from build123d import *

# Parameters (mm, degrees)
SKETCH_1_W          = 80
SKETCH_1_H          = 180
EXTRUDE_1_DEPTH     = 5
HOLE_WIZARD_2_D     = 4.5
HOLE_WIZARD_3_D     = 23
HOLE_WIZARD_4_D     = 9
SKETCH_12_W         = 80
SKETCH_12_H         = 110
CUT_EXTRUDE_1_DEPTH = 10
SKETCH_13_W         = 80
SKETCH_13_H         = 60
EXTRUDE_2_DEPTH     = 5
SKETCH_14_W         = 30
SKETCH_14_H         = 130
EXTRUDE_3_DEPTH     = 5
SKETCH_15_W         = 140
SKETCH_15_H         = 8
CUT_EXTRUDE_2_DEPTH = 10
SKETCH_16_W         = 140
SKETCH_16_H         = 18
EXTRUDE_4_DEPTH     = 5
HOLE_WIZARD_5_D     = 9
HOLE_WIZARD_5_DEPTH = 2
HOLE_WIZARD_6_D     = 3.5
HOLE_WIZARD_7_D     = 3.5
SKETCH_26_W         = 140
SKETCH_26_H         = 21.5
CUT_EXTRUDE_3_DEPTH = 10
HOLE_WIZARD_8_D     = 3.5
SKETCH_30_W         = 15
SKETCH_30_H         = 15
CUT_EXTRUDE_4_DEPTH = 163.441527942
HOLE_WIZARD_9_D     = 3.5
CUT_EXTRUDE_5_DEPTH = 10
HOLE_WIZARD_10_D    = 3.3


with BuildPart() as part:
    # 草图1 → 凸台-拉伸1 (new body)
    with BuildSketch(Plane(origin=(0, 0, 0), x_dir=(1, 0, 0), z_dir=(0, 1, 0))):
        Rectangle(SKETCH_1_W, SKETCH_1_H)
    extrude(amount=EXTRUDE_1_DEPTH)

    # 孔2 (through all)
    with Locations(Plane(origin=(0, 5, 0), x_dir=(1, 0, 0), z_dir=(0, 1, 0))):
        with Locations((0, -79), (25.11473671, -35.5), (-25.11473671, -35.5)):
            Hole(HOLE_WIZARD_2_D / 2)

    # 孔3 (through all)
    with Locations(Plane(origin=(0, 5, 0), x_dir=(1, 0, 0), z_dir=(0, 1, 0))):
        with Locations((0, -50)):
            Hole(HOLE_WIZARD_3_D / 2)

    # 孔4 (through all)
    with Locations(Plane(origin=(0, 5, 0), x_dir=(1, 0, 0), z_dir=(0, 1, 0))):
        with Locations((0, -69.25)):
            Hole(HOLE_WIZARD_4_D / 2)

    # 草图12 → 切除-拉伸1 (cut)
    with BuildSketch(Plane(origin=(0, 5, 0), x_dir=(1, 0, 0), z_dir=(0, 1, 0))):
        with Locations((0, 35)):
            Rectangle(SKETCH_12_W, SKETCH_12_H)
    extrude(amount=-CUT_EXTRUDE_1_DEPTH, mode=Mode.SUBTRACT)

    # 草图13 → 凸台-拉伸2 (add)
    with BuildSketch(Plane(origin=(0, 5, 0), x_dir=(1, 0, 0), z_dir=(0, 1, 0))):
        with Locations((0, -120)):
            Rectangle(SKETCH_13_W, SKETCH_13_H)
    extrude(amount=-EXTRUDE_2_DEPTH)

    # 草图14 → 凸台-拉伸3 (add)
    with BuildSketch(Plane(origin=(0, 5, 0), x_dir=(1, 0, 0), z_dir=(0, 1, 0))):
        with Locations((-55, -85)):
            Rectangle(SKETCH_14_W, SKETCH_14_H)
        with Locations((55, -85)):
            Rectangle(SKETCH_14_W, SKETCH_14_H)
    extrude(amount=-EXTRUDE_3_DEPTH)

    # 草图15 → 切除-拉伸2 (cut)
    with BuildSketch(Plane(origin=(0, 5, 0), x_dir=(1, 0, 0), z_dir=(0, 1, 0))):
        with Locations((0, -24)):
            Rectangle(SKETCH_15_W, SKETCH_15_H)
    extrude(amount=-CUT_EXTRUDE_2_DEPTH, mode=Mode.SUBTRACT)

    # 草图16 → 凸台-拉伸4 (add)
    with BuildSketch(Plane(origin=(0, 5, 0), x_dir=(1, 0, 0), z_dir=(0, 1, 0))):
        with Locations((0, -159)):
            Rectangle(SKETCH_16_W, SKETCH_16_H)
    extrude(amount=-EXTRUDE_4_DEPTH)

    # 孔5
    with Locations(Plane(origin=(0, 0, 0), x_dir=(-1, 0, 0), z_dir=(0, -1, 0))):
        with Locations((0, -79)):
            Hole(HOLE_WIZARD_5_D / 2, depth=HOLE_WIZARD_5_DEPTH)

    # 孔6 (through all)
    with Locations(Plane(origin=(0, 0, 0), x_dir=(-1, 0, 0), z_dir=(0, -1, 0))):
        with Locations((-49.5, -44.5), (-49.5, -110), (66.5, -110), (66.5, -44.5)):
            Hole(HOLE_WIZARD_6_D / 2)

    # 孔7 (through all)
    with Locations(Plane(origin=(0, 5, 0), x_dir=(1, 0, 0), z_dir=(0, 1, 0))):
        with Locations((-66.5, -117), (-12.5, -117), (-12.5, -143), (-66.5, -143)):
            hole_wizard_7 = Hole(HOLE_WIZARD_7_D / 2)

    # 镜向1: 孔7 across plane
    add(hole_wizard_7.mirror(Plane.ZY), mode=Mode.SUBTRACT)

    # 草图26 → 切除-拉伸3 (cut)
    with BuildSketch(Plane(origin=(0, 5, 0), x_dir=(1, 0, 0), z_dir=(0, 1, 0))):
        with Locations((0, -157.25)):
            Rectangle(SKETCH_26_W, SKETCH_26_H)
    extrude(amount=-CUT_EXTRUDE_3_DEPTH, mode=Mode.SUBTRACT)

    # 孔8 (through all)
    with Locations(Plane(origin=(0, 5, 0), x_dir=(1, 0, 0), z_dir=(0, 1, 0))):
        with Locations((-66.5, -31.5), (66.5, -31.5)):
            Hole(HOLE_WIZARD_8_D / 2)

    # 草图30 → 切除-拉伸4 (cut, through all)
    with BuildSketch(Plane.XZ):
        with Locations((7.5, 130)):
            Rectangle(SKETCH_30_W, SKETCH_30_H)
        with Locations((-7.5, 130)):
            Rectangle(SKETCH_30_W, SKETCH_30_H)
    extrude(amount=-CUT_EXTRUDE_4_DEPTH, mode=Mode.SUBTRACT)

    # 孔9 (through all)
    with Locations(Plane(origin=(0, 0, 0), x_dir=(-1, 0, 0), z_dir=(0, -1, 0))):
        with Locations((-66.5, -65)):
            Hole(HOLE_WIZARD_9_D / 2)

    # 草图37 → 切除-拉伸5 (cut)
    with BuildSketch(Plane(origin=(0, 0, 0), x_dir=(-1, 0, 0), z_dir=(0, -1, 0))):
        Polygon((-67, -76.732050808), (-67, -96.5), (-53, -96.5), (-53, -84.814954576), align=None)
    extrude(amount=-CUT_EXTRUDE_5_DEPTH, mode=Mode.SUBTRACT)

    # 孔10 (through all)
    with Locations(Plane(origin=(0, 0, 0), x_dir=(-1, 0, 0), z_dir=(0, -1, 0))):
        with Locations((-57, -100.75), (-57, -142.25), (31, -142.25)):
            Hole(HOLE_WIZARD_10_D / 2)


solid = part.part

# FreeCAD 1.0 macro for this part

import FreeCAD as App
import Part
import Sketcher
Q = App.Units.Quantity


def add_polygon(sketch, points):
    """Adds a closed chain of lines whose ends are joined by coincident constraints."""
    first, n = sketch.GeometryCount, len(points)
    for a, b in zip(points, points[1:] + points[:1]):
        sketch.addGeometry(Part.LineSegment(App.Vector(*a, 0), App.Vector(*b, 0)), False)
    for i in range(n):
        sketch.addConstraint(Sketcher.Constraint("Coincident", first + i, 2, first + (i + 1) % n, 1))

doc = App.newDocument("Part")
params = doc.addObject("Spreadsheet::Sheet", "Params")
for row, (alias, value) in enumerate([
    ("sketch1_width", "80 mm"),
    ("sketch1_height", "180 mm"),
    ("pad1_length", "5 mm"),
    ("sketch2_diameter", "4.5 mm"),
    ("hole_diameter", "4.5 mm"),
    ("sketch3_diameter", "23 mm"),
    ("hole2_diameter", "23 mm"),
    ("sketch4_diameter", "9 mm"),
    ("hole3_diameter", "9 mm"),
    ("sketch5_width", "80 mm"),
    ("sketch5_height", "110 mm"),
    ("pocket1_length", "10 mm"),
    ("sketch6_width", "80 mm"),
    ("sketch6_height", "60 mm"),
    ("pad2_length", "5 mm"),
    ("sketch7_width", "30 mm"),
    ("sketch7_height", "130 mm"),
    ("pad3_length", "5 mm"),
    ("sketch8_width", "140 mm"),
    ("sketch8_height", "8 mm"),
    ("pocket2_length", "10 mm"),
    ("sketch9_width", "140 mm"),
    ("sketch9_height", "18 mm"),
    ("pad4_length", "5 mm"),
    ("sketch10_diameter", "9 mm"),
    ("hole4_diameter", "9 mm"),
    ("hole4_depth", "2 mm"),
    ("sketch11_diameter", "3.5 mm"),
    ("hole5_diameter", "3.5 mm"),
    ("sketch12_diameter", "3.5 mm"),
    ("hole6_diameter", "3.5 mm"),
    ("sketch13_width", "140 mm"),
    ("sketch13_height", "21.5 mm"),
    ("pocket3_length", "10 mm"),
    ("sketch14_diameter", "3.5 mm"),
    ("hole7_diameter", "3.5 mm"),
    ("sketch15_width", "30 mm"),
    ("sketch15_height", "15 mm"),
    ("sketch16_diameter", "3.5 mm"),
    ("hole8_diameter", "3.5 mm"),
    ("sketch17_width", "14 mm"),
    ("pocket5_length", "10 mm"),
    ("sketch18_diameter", "3.3 mm"),
    ("hole9_diameter", "3.3 mm"),
], start=1):
    params.set(f"A{row}", alias)
    params.set(f"B{row}", "=" + value)
    params.setAlias(f"B{row}", alias)

body = doc.addObject("PartDesign::Body", "Body")

# Sketch on XZ plane
sketch1 = body.newObject("Sketcher::SketchObject", "Sketch")
sketch1.AttachmentSupport = (doc.getObject("XZ_Plane"), [""])
sketch1.MapMode = "FlatFace"
add_polygon(sketch1, [(-40, -90), (-40, 90), (40, 90), (40, -90)])  # lines 0-3
sketch1.addConstraint([
    Sketcher.Constraint("Vertical", 0),
    Sketcher.Constraint("Horizontal", 1),
    Sketcher.Constraint("Vertical", 2),
    Sketcher.Constraint("Horizontal", 3),
    Sketcher.Constraint("Symmetric", 0, 2, 2, 2, -1, 1),
    Sketcher.Constraint("DistanceX", 1, 1, 1, 2, 80.0),
    Sketcher.Constraint("DistanceY", 0, 1, 0, 2, 180.0),
])
sketch1.setExpression("Constraints[9]", "Params.sketch1_width")
sketch1.setExpression("Constraints[10]", "Params.sketch1_height")
pad1 = body.newObject("PartDesign::Pad", "Pad")
pad1.Profile = sketch1
pad1.setExpression("Length", "Params.pad1_length")
pad1.Reversed = True

# Sketch on XZ plane
sketch2 = body.newObject("Sketcher::SketchObject", "Sketch001")
sketch2.AttachmentSupport = (doc.getObject("XZ_Plane"), [""])
sketch2.MapMode = "FlatFace"
sketch2.AttachmentOffset = App.Placement(App.Vector(0, 0, -5), App.Rotation())
sketch2.addGeometry([
    Part.Circle(App.Vector(0, 79, 0), App.Vector(0, 0, 1), 2.25),
    Part.Circle(App.Vector(25.114737, 35.5, 0), App.Vector(0, 0, 1), 2.25),
    Part.Circle(App.Vector(-25.114737, 35.5, 0), App.Vector(0, 0, 1), 2.25),
], False)
sketch2.addConstraint([
    Sketcher.Constraint("Equal", 0, 1),
    Sketcher.Constraint("Equal", 1, 2),
    Sketcher.Constraint("Symmetric", 1, 3, 2, 3, -2),
    Sketcher.Constraint("PointOnObject", 0, 3, -2),
    Sketcher.Constraint("Diameter", 0, 4.5),
    Sketcher.Constraint("DistanceY", -1, 1, 0, 3, 79.0),
    Sketcher.Constraint("DistanceY", -1, 1, 1, 3, 35.5),
    Sketcher.Constraint("DistanceX", -1, 1, 1, 3, 25.114737),
])
sketch2.setExpression("Constraints[4]", "Params.sketch2_diameter")
doc.recompute()
hole = body.newObject("PartDesign::Hole", "Hole")
hole.Profile = sketch2
hole.ThreadType = "None"
hole.setExpression("Diameter", "Params.hole_diameter")
hole.DepthType = "ThroughAll"
hole.Reversed = True

# Sketch on XZ plane
sketch3 = body.newObject("Sketcher::SketchObject", "Sketch002")
sketch3.AttachmentSupport = (doc.getObject("XZ_Plane"), [""])
sketch3.MapMode = "FlatFace"
sketch3.AttachmentOffset = App.Placement(App.Vector(0, 0, -5), App.Rotation())
sketch3.addGeometry(Part.Circle(App.Vector(0, 50, 0), App.Vector(0, 0, 1), 11.5), False)
sketch3.addConstraint([
    Sketcher.Constraint("PointOnObject", 0, 3, -2),
    Sketcher.Constraint("Diameter", 0, 23.0),
    Sketcher.Constraint("DistanceY", -1, 1, 0, 3, 50.0),
])
sketch3.setExpression("Constraints[1]", "Params.sketch3_diameter")
doc.recompute()
hole2 = body.newObject("PartDesign::Hole", "Hole001")
hole2.Profile = sketch3
hole2.ThreadType = "None"
hole2.setExpression("Diameter", "Params.hole2_diameter")
hole2.DepthType = "ThroughAll"
hole2.Reversed = True

# Sketch on XZ plane
sketch4 = body.newObject("Sketcher::SketchObject", "Sketch003")
sketch4.AttachmentSupport = (doc.getObject("XZ_Plane"), [""])
sketch4.MapMode = "FlatFace"
sketch4.AttachmentOffset = App.Placement(App.Vector(0, 0, -5), App.Rotation())
sketch4.addGeometry(Part.Circle(App.Vector(0, 69.25, 0), App.Vector(0, 0, 1), 4.5), False)
sketch4.addConstraint([
    Sketcher.Constraint("PointOnObject", 0, 3, -2),
    Sketcher.Constraint("Diameter", 0, 9.0),
    Sketcher.Constraint("DistanceY", -1, 1, 0, 3, 69.25),
])
sketch4.setExpression("Constraints[1]", "Params.sketch4_diameter")
doc.recompute()
hole3 = body.newObject("PartDesign::Hole", "Hole002")
hole3.Profile = sketch4
hole3.ThreadType = "None"
hole3.setExpression("Diameter", "Params.hole3_diameter")
hole3.DepthType = "ThroughAll"
hole3.Reversed = True

# Sketch on XZ plane
sketch5 = body.newObject("Sketcher::SketchObject", "Sketch004")
sketch5.AttachmentSupport = (doc.getObject("XZ_Plane"), [""])
sketch5.MapMode = "FlatFace"
sketch5.AttachmentOffset = App.Placement(App.Vector(0, 0, -5), App.Rotation())
add_polygon(sketch5, [(-40, -90), (-40, 20), (40, 20), (40, -90)])  # lines 0-3
sketch5.addConstraint([
    Sketcher.Constraint("Vertical", 0),
    Sketcher.Constraint("Horizontal", 1),
    Sketcher.Constraint("Vertical", 2),
    Sketcher.Constraint("Horizontal", 3),
    Sketcher.Constraint("DistanceX", 1, 1, 1, 2, 80.0),
    Sketcher.Constraint("DistanceY", 0, 1, 0, 2, 110.0),
    Sketcher.Constraint("DistanceX", 0, 2, -1, 1, 40.0),
    Sketcher.Constraint("DistanceY", -1, 1, 0, 2, 20.0),
])
sketch5.setExpression("Constraints[8]", "Params.sketch5_width")
sketch5.setExpression("Constraints[9]", "Params.sketch5_height")
pocket1 = body.newObject("PartDesign::Pocket", "Pocket")
pocket1.Profile = sketch5
pocket1.setExpression("Length", "Params.pocket1_length")
pocket1.Reversed = True

# Sketch on XZ plane
sketch6 = body.newObject("Sketcher::SketchObject", "Sketch005")
sketch6.AttachmentSupport = (doc.getObject("XZ_Plane"), [""])
sketch6.MapMode = "FlatFace"
sketch6.AttachmentOffset = App.Placement(App.Vector(0, 0, -5), App.Rotation())
add_polygon(sketch6, [(-40, 90), (-40, 150), (40, 150), (40, 90)])  # lines 0-3
sketch6.addConstraint([
    Sketcher.Constraint("Vertical", 0),
    Sketcher.Constraint("Horizontal", 1),
    Sketcher.Constraint("Vertical", 2),
    Sketcher.Constraint("Horizontal", 3),
    Sketcher.Constraint("DistanceX", 1, 1, 1, 2, 80.0),
    Sketcher.Constraint("DistanceY", 0, 1, 0, 2, 60.0),
    Sketcher.Constraint("DistanceX", 0, 2, -1, 1, 40.0),
    Sketcher.Constraint("DistanceY", -1, 1, 0, 2, 150.0),
])
sketch6.setExpression("Constraints[8]", "Params.sketch6_width")
sketch6.setExpression("Constraints[9]", "Params.sketch6_height")
pad2 = body.newObject("PartDesign::Pad", "Pad001")
pad2.Profile = sketch6
pad2.setExpression("Length", "Params.pad2_length")

# Sketch on XZ plane
sketch7 = body.newObject("Sketcher::SketchObject", "Sketch006")
sketch7.AttachmentSupport = (doc.getObject("XZ_Plane"), [""])
sketch7.MapMode = "FlatFace"
sketch7.AttachmentOffset = App.Placement(App.Vector(0, 0, -5), App.Rotation())
add_polygon(sketch7, [(-70, 20), (-70, 150), (-40, 150), (-40, 20)])  # lines 0-3
add_polygon(sketch7, [(40, 20), (40, 150), (70, 150), (70, 20)])  # lines 4-7
sketch7.addConstraint([
    Sketcher.Constraint("Vertical", 0),
    Sketcher.Constraint("Horizontal", 1),
    Sketcher.Constraint("Vertical", 2),
    Sketcher.Constraint("Horizontal", 3),
    Sketcher.Constraint("Vertical", 4),
    Sketcher.Constraint("Horizontal", 5),
    Sketcher.Constraint("Vertical", 6),
    Sketcher.Constraint("Horizontal", 7),
    Sketcher.Constraint("Symmetric", 1, 2, 4, 2, -2),
    Sketcher.Constraint("Symmetric", 3, 2, 6, 2, -2),
    Sketcher.Constraint("DistanceX", 1, 1, 1, 2, 30.0),
    Sketcher.Constraint("DistanceY", 0, 1, 0, 2, 130.0),
    Sketcher.Constraint("DistanceX", 0, 2, -1, 1, 70.0),
    Sketcher.Constraint("DistanceY", -1, 1, 0, 2, 150.0),
])
sketch7.setExpression("Constraints[18]", "Params.sketch7_width")
sketch7.setExpression("Constraints[19]", "Params.sketch7_height")
pad3 = body.newObject("PartDesign::Pad", "Pad002")
pad3.Profile = sketch7
pad3.setExpression("Length", "Params.pad3_length")

# Sketch on XZ plane
sketch8 = body.newObject("Sketcher::SketchObject", "Sketch007")
sketch8.AttachmentSupport = (doc.getObject("XZ_Plane"), [""])
sketch8.MapMode = "FlatFace"
sketch8.AttachmentOffset = App.Placement(App.Vector(0, 0, -5), App.Rotation())
add_polygon(sketch8, [(-70, 20), (-70, 28), (70, 28), (70, 20)])  # lines 0-3
sketch8.addConstraint([
    Sketcher.Constraint("Vertical", 0),
    Sketcher.Constraint("Horizontal", 1),
    Sketcher.Constraint("Vertical", 2),
    Sketcher.Constraint("Horizontal", 3),
    Sketcher.Constraint("DistanceX", 1, 1, 1, 2, 140.0),
    Sketcher.Constraint("DistanceY", 0, 1, 0, 2, 8.0),
    Sketcher.Constraint("DistanceX", 0, 2, -1, 1, 70.0),
    Sketcher.Constraint("DistanceY", -1, 1, 0, 2, 28.0),
])
sketch8.setExpression("Constraints[8]", "Params.sketch8_width")
sketch8.setExpression("Constraints[9]", "Params.sketch8_height")
pocket2 = body.newObject("PartDesign::Pocket", "Pocket001")
pocket2.Profile = sketch8
pocket2.setExpression("Length", "Params.pocket2_length")
pocket2.Reversed = True

# Sketch on XZ plane
sketch9 = body.newObject("Sketcher::SketchObject", "Sketch008")
sketch9.AttachmentSupport = (doc.getObject("XZ_Plane"), [""])
sketch9.MapMode = "FlatFace"
sketch9.AttachmentOffset = App.Placement(App.Vector(0, 0, -5), App.Rotation())
add_polygon(sketch9, [(-70, 150), (-70, 168), (70, 168), (70, 150)])  # lines 0-3
sketch9.addConstraint([
    Sketcher.Constraint("Vertical", 0),
    Sketcher.Constraint("Horizontal", 1),
    Sketcher.Constraint("Vertical", 2),
    Sketcher.Constraint("Horizontal", 3),
    Sketcher.Constraint("DistanceX", 1, 1, 1, 2, 140.0),
    Sketcher.Constraint("DistanceY", 0, 1, 0, 2, 18.0),
    Sketcher.Constraint("DistanceX", 0, 2, -1, 1, 70.0),
    Sketcher.Constraint("DistanceY", -1, 1, 0, 2, 168.0),
])
sketch9.setExpression("Constraints[8]", "Params.sketch9_width")
sketch9.setExpression("Constraints[9]", "Params.sketch9_height")
pad4 = body.newObject("PartDesign::Pad", "Pad003")
pad4.Profile = sketch9
pad4.setExpression("Length", "Params.pad4_length")

# Sketch on XZ plane
sketch10 = body.newObject("Sketcher::SketchObject", "Sketch009")
sketch10.AttachmentSupport = (doc.getObject("XZ_Plane"), [""])
sketch10.MapMode = "FlatFace"
sketch10.addGeometry(Part.Circle(App.Vector(0, 79, 0), App.Vector(0, 0, 1), 4.5), False)
sketch10.addConstraint([
    Sketcher.Constraint("PointOnObject", 0, 3, -2),
    Sketcher.Constraint("Diameter", 0, 9.0),
    Sketcher.Constraint("DistanceY", -1, 1, 0, 3, 79.0),
])
sketch10.setExpression("Constraints[1]", "Params.sketch10_diameter")
doc.recompute()
hole4 = body.newObject("PartDesign::Hole", "Hole003")
hole4.Profile = sketch10
hole4.ThreadType = "None"
hole4.setExpression("Diameter", "Params.hole4_diameter")
hole4.DepthType = "Dimension"
hole4.setExpression("Depth", "Params.hole4_depth")
hole4.DrillPoint = "Flat"

# Sketch on XZ plane
sketch11 = body.newObject("Sketcher::SketchObject", "Sketch010")
sketch11.AttachmentSupport = (doc.getObject("XZ_Plane"), [""])
sketch11.MapMode = "FlatFace"
sketch11.addGeometry([
    Part.Circle(App.Vector(49.5, 44.5, 0), App.Vector(0, 0, 1), 1.75),
    Part.Circle(App.Vector(49.5, 110, 0), App.Vector(0, 0, 1), 1.75),
    Part.Circle(App.Vector(-66.5, 110, 0), App.Vector(0, 0, 1), 1.75),
    Part.Circle(App.Vector(-66.5, 44.5, 0), App.Vector(0, 0, 1), 1.75),
], False)
sketch11.addConstraint([
    Sketcher.Constraint("Equal", 0, 1),
    Sketcher.Constraint("Equal", 1, 2),
    Sketcher.Constraint("Equal", 2, 3),
    Sketcher.Constraint("Horizontal", 1, 3, 2, 3),
    Sketcher.Constraint("Horizontal", 0, 3, 3, 3),
    Sketcher.Constraint("Vertical", 0, 3, 1, 3),
    Sketcher.Constraint("Vertical", 2, 3, 3, 3),
    Sketcher.Constraint("Diameter", 0, 3.5),
    Sketcher.Constraint("DistanceY", -1, 1, 1, 3, 110.0),
    Sketcher.Constraint("DistanceX", 2, 3, 1, 3, 116.0),
    Sketcher.Constraint("DistanceX", -1, 1, 0, 3, 49.5),
    Sketcher.Constraint("DistanceY", -1, 1, 0, 3, 44.5),
])
sketch11.setExpression("Constraints[7]", "Params.sketch11_diameter")
doc.recompute()
hole5 = body.newObject("PartDesign::Hole", "Hole004")
hole5.Profile = sketch11
hole5.ThreadType = "None"
hole5.setExpression("Diameter", "Params.hole5_diameter")
hole5.DepthType = "ThroughAll"

# Sketch on XZ plane
sketch12 = body.newObject("Sketcher::SketchObject", "Sketch011")
sketch12.AttachmentSupport = (doc.getObject("XZ_Plane"), [""])
sketch12.MapMode = "FlatFace"
sketch12.AttachmentOffset = App.Placement(App.Vector(0, 0, -5), App.Rotation())
sketch12.addGeometry([
    Part.Circle(App.Vector(-66.5, 117, 0), App.Vector(0, 0, 1), 1.75),
    Part.Circle(App.Vector(-12.5, 117, 0), App.Vector(0, 0, 1), 1.75),
    Part.Circle(App.Vector(-12.5, 143, 0), App.Vector(0, 0, 1), 1.75),
    Part.Circle(App.Vector(-66.5, 143, 0), App.Vector(0, 0, 1), 1.75),
], False)
sketch12.addConstraint([
    Sketcher.Constraint("Equal", 0, 1),
    Sketcher.Constraint("Equal", 1, 2),
    Sketcher.Constraint("Equal", 2, 3),
    Sketcher.Constraint("Horizontal", 0, 3, 1, 3),
    Sketcher.Constraint("Horizontal", 2, 3, 3, 3),
    Sketcher.Constraint("Vertical", 1, 3, 2, 3),
    Sketcher.Constraint("Vertical", 0, 3, 3, 3),
    Sketcher.Constraint("Diameter", 0, 3.5),
    Sketcher.Constraint("DistanceY", -1, 1, 0, 3, 117.0),
    Sketcher.Constraint("DistanceY", -1, 1, 2, 3, 143.0),
    Sketcher.Constraint("DistanceX", 0, 3, 1, 3, 54.0),
    Sketcher.Constraint("DistanceX", 0, 3, -1, 1, 66.5),
])
sketch12.setExpression("Constraints[7]", "Params.sketch12_diameter")
doc.recompute()
hole6 = body.newObject("PartDesign::Hole", "Hole005")
hole6.Profile = sketch12
hole6.ThreadType = "None"
hole6.setExpression("Diameter", "Params.hole6_diameter")
hole6.DepthType = "ThroughAll"
hole6.Reversed = True
doc.recompute()

mirrored = body.newObject("PartDesign::Mirrored", "Mirrored")
mirrored.Originals = [hole6]
mirrored.MirrorPlane = (doc.getObject("YZ_Plane"), [""])
body.Tip = mirrored

# Sketch on XZ plane
sketch13 = body.newObject("Sketcher::SketchObject", "Sketch012")
sketch13.AttachmentSupport = (doc.getObject("XZ_Plane"), [""])
sketch13.MapMode = "FlatFace"
sketch13.AttachmentOffset = App.Placement(App.Vector(0, 0, -5), App.Rotation())
add_polygon(sketch13, [(-70, 146.5), (-70, 168), (70, 168), (70, 146.5)])  # lines 0-3
sketch13.addConstraint([
    Sketcher.Constraint("Vertical", 0),
    Sketcher.Constraint("Horizontal", 1),
    Sketcher.Constraint("Vertical", 2),
    Sketcher.Constraint("Horizontal", 3),
    Sketcher.Constraint("DistanceX", 1, 1, 1, 2, 140.0),
    Sketcher.Constraint("DistanceY", 0, 1, 0, 2, 21.5),
    Sketcher.Constraint("DistanceX", 0, 2, -1, 1, 70.0),
    Sketcher.Constraint("DistanceY", -1, 1, 0, 2, 168.0),
])
sketch13.setExpression("Constraints[8]", "Params.sketch13_width")
sketch13.setExpression("Constraints[9]", "Params.sketch13_height")
pocket3 = body.newObject("PartDesign::Pocket", "Pocket002")
pocket3.Profile = sketch13
pocket3.setExpression("Length", "Params.pocket3_length")
pocket3.Reversed = True

# Sketch on XZ plane
sketch14 = body.newObject("Sketcher::SketchObject", "Sketch013")
sketch14.AttachmentSupport = (doc.getObject("XZ_Plane"), [""])
sketch14.MapMode = "FlatFace"
sketch14.AttachmentOffset = App.Placement(App.Vector(0, 0, -5), App.Rotation())
sketch14.addGeometry([
    Part.Circle(App.Vector(-66.5, 31.5, 0), App.Vector(0, 0, 1), 1.75),
    Part.Circle(App.Vector(66.5, 31.5, 0), App.Vector(0, 0, 1), 1.75),
], False)
sketch14.addConstraint([
    Sketcher.Constraint("Equal", 0, 1),
    Sketcher.Constraint("Symmetric", 0, 3, 1, 3, -2),
    Sketcher.Constraint("Diameter", 0, 3.5),
    Sketcher.Constraint("DistanceX", 0, 3, 1, 3, 133.0),
    Sketcher.Constraint("DistanceY", -1, 1, 0, 3, 31.5),
])
sketch14.setExpression("Constraints[2]", "Params.sketch14_diameter")
doc.recompute()
hole7 = body.newObject("PartDesign::Hole", "Hole006")
hole7.Profile = sketch14
hole7.ThreadType = "None"
hole7.setExpression("Diameter", "Params.hole7_diameter")
hole7.DepthType = "ThroughAll"
hole7.Reversed = True

# Sketch on XZ plane
sketch15 = body.newObject("Sketcher::SketchObject", "Sketch014")
sketch15.AttachmentSupport = (doc.getObject("XZ_Plane"), [""])
sketch15.MapMode = "FlatFace"
add_polygon(sketch15, [(15, 122.5), (15, 137.5), (-15, 137.5), (-15, 122.5)])  # lines 0-3
sketch15.addConstraint([
    Sketcher.Constraint("Vertical", 0),
    Sketcher.Constraint("Horizontal", 1),
    Sketcher.Constraint("Vertical", 2),
    Sketcher.Constraint("Horizontal", 3),
    Sketcher.Constraint("DistanceX", 1, 2, 1, 1, 30.0),
    Sketcher.Constraint("DistanceY", 0, 1, 0, 2, 15.0),
    Sketcher.Constraint("DistanceX", -1, 1, 0, 2, 15.0),
    Sketcher.Constraint("DistanceY", -1, 1, 0, 2, 137.5),
])
sketch15.setExpression("Constraints[8]", "Params.sketch15_width")
sketch15.setExpression("Constraints[9]", "Params.sketch15_height")
pocket4 = body.newObject("PartDesign::Pocket", "Pocket003")
pocket4.Profile = sketch15
pocket4.Type = "ThroughAll"

# Sketch on XZ plane
sketch16 = body.newObject("Sketcher::SketchObject", "Sketch015")
sketch16.AttachmentSupport = (doc.getObject("XZ_Plane"), [""])
sketch16.MapMode = "FlatFace"
sketch16.addGeometry(Part.Circle(App.Vector(66.5, 65, 0), App.Vector(0, 0, 1), 1.75), False)
sketch16.addConstraint([
    Sketcher.Constraint("Diameter", 0, 3.5),
    Sketcher.Constraint("DistanceY", -1, 1, 0, 3, 65.0),
    Sketcher.Constraint("DistanceX", -1, 1, 0, 3, 66.5),
])
sketch16.setExpression("Constraints[0]", "Params.sketch16_diameter")
doc.recompute()
hole8 = body.newObject("PartDesign::Hole", "Hole007")
hole8.Profile = sketch16
hole8.ThreadType = "None"
hole8.setExpression("Diameter", "Params.hole8_diameter")
hole8.DepthType = "ThroughAll"

# Sketch on XZ plane
sketch17 = body.newObject("Sketcher::SketchObject", "Sketch016")
sketch17.AttachmentSupport = (doc.getObject("XZ_Plane"), [""])
sketch17.MapMode = "FlatFace"
add_polygon(sketch17, [(67, 76.732051), (67, 96.5), (53, 96.5), (53, 84.814955)])  # lines 0-3
sketch17.addConstraint([
    Sketcher.Constraint("Vertical", 0),
    Sketcher.Constraint("Horizontal", 1),
    Sketcher.Constraint("Vertical", 2),
    Sketcher.Constraint("DistanceX", 1, 2, 1, 1, 14.0),
    Sketcher.Constraint("Angle", 3, Q("-30 deg")),
    Sketcher.Constraint("DistanceX", -1, 1, 0, 2, 67.0),
    Sketcher.Constraint("DistanceY", -1, 1, 0, 2, 96.5),
    Sketcher.Constraint("DistanceY", 0, 1, 0, 2, 19.767949),
])
sketch17.setExpression("Constraints[7]", "Params.sketch17_width")
pocket5 = body.newObject("PartDesign::Pocket", "Pocket004")
pocket5.Profile = sketch17
pocket5.setExpression("Length", "Params.pocket5_length")

# Sketch on XZ plane
sketch18 = body.newObject("Sketcher::SketchObject", "Sketch017")
sketch18.AttachmentSupport = (doc.getObject("XZ_Plane"), [""])
sketch18.MapMode = "FlatFace"
sketch18.addGeometry([
    Part.Circle(App.Vector(57, 100.75, 0), App.Vector(0, 0, 1), 1.65),
    Part.Circle(App.Vector(57, 142.25, 0), App.Vector(0, 0, 1), 1.65),
    Part.Circle(App.Vector(-31, 142.25, 0), App.Vector(0, 0, 1), 1.65),
], False)
sketch18.addConstraint([
    Sketcher.Constraint("Equal", 0, 1),
    Sketcher.Constraint("Equal", 1, 2),
    Sketcher.Constraint("Horizontal", 1, 3, 2, 3),
    Sketcher.Constraint("Vertical", 0, 3, 1, 3),
    Sketcher.Constraint("Diameter", 0, 3.3),
    Sketcher.Constraint("DistanceX", -1, 1, 0, 3, 57.0),
    Sketcher.Constraint("DistanceX", 2, 3, -1, 1, 31.0),
    Sketcher.Constraint("DistanceY", 0, 3, 1, 3, 41.5),
    Sketcher.Constraint("DistanceY", -1, 1, 0, 3, 100.75),
])
sketch18.setExpression("Constraints[4]", "Params.sketch18_diameter")
doc.recompute()
hole9 = body.newObject("PartDesign::Hole", "Hole008")
hole9.Profile = sketch18
hole9.ThreadType = "None"
hole9.setExpression("Diameter", "Params.hole9_diameter")
hole9.DepthType = "ThroughAll"

doc.recompute()
